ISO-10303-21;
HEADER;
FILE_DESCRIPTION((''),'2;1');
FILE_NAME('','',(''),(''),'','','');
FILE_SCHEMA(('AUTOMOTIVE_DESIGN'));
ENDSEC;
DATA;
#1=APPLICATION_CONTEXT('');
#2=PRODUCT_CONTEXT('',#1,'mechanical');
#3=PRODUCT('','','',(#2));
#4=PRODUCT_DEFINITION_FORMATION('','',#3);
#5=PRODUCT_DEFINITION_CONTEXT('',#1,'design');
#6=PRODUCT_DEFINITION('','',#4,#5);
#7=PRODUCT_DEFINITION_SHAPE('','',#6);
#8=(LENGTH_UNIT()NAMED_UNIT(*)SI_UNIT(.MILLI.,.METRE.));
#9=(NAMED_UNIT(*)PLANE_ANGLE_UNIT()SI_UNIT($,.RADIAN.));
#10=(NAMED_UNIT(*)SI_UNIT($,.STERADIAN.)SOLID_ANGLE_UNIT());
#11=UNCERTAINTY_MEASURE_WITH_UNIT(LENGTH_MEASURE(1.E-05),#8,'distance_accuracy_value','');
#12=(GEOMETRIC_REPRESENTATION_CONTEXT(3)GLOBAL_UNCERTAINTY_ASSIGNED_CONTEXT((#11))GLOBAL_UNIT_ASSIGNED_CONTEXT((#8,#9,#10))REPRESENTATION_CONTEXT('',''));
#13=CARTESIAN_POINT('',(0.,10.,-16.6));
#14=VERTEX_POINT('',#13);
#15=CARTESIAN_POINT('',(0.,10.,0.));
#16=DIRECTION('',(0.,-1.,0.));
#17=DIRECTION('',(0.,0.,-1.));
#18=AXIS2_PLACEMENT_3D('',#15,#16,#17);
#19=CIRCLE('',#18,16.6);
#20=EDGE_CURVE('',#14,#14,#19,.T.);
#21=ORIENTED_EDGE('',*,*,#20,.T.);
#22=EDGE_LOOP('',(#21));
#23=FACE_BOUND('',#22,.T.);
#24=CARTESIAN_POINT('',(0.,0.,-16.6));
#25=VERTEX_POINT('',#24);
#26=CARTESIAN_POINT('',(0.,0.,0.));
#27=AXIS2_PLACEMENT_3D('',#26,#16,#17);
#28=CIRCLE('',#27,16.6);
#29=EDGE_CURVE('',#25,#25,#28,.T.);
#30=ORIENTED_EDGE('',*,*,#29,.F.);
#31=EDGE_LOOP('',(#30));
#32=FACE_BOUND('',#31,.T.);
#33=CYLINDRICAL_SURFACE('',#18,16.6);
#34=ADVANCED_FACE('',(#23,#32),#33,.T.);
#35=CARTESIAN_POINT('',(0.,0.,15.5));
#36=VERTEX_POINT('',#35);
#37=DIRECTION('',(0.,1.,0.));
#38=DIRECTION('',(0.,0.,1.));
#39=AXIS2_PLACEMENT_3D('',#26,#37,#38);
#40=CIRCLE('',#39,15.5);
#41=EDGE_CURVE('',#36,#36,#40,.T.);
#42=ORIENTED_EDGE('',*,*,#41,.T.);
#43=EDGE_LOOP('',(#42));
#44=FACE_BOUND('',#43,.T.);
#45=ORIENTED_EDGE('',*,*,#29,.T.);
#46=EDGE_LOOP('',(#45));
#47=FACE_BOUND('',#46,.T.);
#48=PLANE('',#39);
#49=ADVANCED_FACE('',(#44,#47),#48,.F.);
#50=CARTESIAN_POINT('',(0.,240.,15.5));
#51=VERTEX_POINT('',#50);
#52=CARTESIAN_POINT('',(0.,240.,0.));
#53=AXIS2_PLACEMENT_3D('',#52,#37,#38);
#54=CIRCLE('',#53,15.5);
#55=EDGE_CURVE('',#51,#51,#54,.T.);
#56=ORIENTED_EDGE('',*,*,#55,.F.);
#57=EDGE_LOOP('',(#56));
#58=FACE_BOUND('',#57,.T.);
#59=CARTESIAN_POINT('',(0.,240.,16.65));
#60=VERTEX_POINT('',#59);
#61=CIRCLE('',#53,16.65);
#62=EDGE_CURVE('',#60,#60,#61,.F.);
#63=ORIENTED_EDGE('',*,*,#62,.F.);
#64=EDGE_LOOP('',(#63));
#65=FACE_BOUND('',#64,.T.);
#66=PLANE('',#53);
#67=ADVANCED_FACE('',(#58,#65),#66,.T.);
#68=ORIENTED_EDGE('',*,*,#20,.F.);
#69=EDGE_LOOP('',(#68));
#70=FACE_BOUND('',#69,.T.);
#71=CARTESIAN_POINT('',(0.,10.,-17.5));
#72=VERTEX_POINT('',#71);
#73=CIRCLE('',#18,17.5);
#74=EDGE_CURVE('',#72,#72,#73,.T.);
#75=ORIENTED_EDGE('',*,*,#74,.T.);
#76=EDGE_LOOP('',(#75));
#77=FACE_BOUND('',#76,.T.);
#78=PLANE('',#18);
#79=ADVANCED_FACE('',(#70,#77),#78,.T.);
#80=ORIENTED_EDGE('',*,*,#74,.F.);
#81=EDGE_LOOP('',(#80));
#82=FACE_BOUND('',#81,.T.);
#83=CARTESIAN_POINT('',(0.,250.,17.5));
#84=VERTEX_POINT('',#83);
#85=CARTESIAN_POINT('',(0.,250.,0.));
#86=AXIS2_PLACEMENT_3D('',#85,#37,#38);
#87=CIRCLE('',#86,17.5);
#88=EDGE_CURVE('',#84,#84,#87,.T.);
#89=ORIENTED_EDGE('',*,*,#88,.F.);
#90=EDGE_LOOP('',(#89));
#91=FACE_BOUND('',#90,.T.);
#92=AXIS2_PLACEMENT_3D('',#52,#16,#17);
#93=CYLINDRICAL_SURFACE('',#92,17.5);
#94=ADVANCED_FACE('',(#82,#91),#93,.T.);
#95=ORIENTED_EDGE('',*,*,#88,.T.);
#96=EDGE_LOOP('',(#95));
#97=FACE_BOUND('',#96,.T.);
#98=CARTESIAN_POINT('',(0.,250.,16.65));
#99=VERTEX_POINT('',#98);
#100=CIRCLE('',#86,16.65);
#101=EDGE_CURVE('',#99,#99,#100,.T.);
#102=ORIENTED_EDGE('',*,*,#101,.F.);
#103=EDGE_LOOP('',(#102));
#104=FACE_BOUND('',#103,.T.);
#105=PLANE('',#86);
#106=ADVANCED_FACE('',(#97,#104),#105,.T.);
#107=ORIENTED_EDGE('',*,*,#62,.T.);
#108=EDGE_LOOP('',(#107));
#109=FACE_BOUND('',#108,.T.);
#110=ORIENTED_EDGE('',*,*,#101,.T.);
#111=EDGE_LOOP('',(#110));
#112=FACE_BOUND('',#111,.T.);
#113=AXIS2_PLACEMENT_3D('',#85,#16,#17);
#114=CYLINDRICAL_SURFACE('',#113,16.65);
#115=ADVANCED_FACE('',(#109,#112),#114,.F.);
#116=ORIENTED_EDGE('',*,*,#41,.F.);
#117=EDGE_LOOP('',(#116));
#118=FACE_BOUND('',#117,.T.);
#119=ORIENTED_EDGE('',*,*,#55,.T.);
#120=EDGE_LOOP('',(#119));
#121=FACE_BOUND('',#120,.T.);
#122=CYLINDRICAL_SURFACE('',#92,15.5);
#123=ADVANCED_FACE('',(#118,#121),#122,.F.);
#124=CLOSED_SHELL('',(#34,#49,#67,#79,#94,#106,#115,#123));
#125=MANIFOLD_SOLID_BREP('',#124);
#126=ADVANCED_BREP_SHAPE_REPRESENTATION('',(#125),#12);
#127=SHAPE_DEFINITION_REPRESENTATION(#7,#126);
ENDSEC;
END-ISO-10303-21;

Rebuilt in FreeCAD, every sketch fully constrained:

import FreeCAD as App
import Part
import Sketcher
from FreeCAD import Vector

doc = App.newDocument("Part")
body = doc.addObject("PartDesign::Body", "Body")

# Sketch on XZ plane
sketch1 = body.newObject("Sketcher::SketchObject", "Sketch")
sketch1.AttachmentSupport = (doc.getObject("XZ_Plane"), [""])
sketch1.MapMode = "FlatFace"
sketch1.addGeometry(Part.Circle(Vector(0, 0, 0), Vector(0, 0, 1), 17.5), False)
sketch1.addGeometry(Part.Circle(Vector(0, 0, 0), Vector(0, 0, 1), 15.5), False)
sketch1.addConstraint(Sketcher.Constraint("Coincident", 0, 3, -1, 1))
sketch1.addConstraint(Sketcher.Constraint("Coincident", 1, 3, -1, 1))
sketch1.addConstraint(Sketcher.Constraint("Diameter", 0, 35.0))
sketch1.addConstraint(Sketcher.Constraint("Diameter", 1, 31.0))
pad1 = body.newObject("PartDesign::Pad", "Pad")
pad1.Profile = sketch1
pad1.Length = 240
pad1.Reversed = True

# Sketch on XZ plane
sketch2 = body.newObject("Sketcher::SketchObject", "Sketch001")
sketch2.AttachmentSupport = (doc.getObject("XZ_Plane"), [""])
sketch2.MapMode = "FlatFace"
sketch2.AttachmentOffset = App.Placement(Vector(0, 0, -240), App.Rotation())
sketch2.addGeometry(Part.Circle(Vector(0, 0, 0), Vector(0, 0, 1), 17.5), False)
sketch2.addGeometry(Part.Circle(Vector(0, 0, 0), Vector(0, 0, 1), 16.65), False)
sketch2.addConstraint(Sketcher.Constraint("Coincident", 0, 3, -1, 1))
sketch2.addConstraint(Sketcher.Constraint("Coincident", 1, 3, -1, 1))
sketch2.addConstraint(Sketcher.Constraint("Diameter", 0, 35.0))
sketch2.addConstraint(Sketcher.Constraint("Diameter", 1, 33.3))
pad2 = body.newObject("PartDesign::Pad", "Pad001")
pad2.Profile = sketch2
pad2.Length = 10
pad2.Reversed = True

# Sketch on XZ plane
sketch3 = body.newObject("Sketcher::SketchObject", "Sketch002")
sketch3.AttachmentSupport = (doc.getObject("XZ_Plane"), [""])
sketch3.MapMode = "FlatFace"
sketch3.addGeometry(Part.Circle(Vector(0, 0, 0), Vector(0, 0, 1), 17.5), False)
sketch3.addGeometry(Part.Circle(Vector(0, 0, 0), Vector(0, 0, 1), 16.6), False)
sketch3.addConstraint(Sketcher.Constraint("Coincident", 0, 3, -1, 1))
sketch3.addConstraint(Sketcher.Constraint("Coincident", 1, 3, -1, 1))
sketch3.addConstraint(Sketcher.Constraint("Diameter", 0, 35.0))
sketch3.addConstraint(Sketcher.Constraint("Diameter", 1, 33.2))
pocket1 = body.newObject("PartDesign::Pocket", "Pocket")
pocket1.Profile = sketch3
pocket1.Length = 10

doc.recompute()
